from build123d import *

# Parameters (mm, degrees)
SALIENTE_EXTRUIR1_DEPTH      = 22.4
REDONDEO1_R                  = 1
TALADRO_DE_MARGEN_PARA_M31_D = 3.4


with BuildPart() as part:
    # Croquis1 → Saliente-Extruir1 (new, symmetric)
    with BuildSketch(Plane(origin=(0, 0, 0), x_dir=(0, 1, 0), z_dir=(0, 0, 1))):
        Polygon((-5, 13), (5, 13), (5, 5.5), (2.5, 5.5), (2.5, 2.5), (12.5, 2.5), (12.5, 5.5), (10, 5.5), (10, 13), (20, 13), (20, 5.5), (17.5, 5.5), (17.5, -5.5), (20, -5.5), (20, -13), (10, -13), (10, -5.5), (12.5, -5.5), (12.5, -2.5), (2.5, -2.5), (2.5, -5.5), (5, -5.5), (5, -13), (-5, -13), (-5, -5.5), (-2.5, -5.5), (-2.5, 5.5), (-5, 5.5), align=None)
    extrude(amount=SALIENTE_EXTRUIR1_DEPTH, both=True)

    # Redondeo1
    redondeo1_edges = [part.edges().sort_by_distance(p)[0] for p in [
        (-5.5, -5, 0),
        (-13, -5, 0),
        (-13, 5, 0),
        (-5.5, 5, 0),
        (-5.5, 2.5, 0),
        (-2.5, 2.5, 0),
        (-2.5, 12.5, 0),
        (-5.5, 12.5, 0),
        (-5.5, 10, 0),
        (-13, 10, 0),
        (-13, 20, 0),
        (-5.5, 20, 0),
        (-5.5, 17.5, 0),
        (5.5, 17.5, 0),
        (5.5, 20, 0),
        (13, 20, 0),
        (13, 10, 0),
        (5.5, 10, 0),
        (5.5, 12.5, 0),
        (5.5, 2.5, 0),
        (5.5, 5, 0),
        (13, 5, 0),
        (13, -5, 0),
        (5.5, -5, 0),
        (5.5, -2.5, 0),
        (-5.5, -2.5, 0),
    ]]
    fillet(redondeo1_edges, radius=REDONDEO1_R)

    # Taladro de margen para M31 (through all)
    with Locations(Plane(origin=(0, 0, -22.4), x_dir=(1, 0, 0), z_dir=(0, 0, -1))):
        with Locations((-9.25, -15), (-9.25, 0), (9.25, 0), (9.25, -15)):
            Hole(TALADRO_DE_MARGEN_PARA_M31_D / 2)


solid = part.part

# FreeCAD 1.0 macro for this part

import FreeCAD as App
import Part
import Sketcher
from FreeCAD import Vector


def edges_at(feature, points):
    """Names of the edges that pass closest to the given points."""
    edges = feature.Shape.Edges
    near = lambda p: min(range(len(edges)), key=lambda i: edges[i].distToShape(Part.Vertex(*p))[0])
    return sorted({f"Edge{near(p) + 1}" for p in points})

doc = App.newDocument("Part")
body = doc.addObject("PartDesign::Body", "Body")

# Sketch on XY plane
sketch1 = body.newObject("Sketcher::SketchObject", "Sketch")
sketch1.AttachmentSupport = (doc.getObject("XY_Plane"), [""])
sketch1.MapMode = "FlatFace"
sketch1.addGeometry([
    Part.LineSegment(Vector(-13, 5, 0), Vector(-13, -5, 0)),  # 0
    Part.LineSegment(Vector(-13, -5, 0), Vector(-5.5, -5, 0)),  # 1
    Part.LineSegment(Vector(-5.5, -5, 0), Vector(-5.5, -2.5, 0)),  # 2
    Part.LineSegment(Vector(-5.5, -2.5, 0), Vector(5.5, -2.5, 0)),  # 3
    Part.LineSegment(Vector(5.5, -2.5, 0), Vector(5.5, -5, 0)),  # 4
    Part.LineSegment(Vector(5.5, -5, 0), Vector(13, -5, 0)),  # 5
    Part.LineSegment(Vector(13, -5, 0), Vector(13, 5, 0)),  # 6
    Part.LineSegment(Vector(13, 5, 0), Vector(5.5, 5, 0)),  # 7
    Part.LineSegment(Vector(5.5, 5, 0), Vector(5.5, 2.5, 0)),  # 8
    Part.LineSegment(Vector(5.5, 2.5, 0), Vector(2.5, 2.5, 0)),  # 9
    Part.LineSegment(Vector(2.5, 2.5, 0), Vector(2.5, 12.5, 0)),  # 10
    Part.LineSegment(Vector(2.5, 12.5, 0), Vector(5.5, 12.5, 0)),  # 11
    Part.LineSegment(Vector(5.5, 12.5, 0), Vector(5.5, 10, 0)),  # 12
    Part.LineSegment(Vector(5.5, 10, 0), Vector(13, 10, 0)),  # 13
    Part.LineSegment(Vector(13, 10, 0), Vector(13, 20, 0)),  # 14
    Part.LineSegment(Vector(13, 20, 0), Vector(5.5, 20, 0)),  # 15
    Part.LineSegment(Vector(5.5, 20, 0), Vector(5.5, 17.5, 0)),  # 16
    Part.LineSegment(Vector(5.5, 17.5, 0), Vector(-5.5, 17.5, 0)),  # 17
    Part.LineSegment(Vector(-5.5, 17.5, 0), Vector(-5.5, 20, 0)),  # 18
    Part.LineSegment(Vector(-5.5, 20, 0), Vector(-13, 20, 0)),  # 19
    Part.LineSegment(Vector(-13, 20, 0), Vector(-13, 10, 0)),  # 20
    Part.LineSegment(Vector(-13, 10, 0), Vector(-5.5, 10, 0)),  # 21
    Part.LineSegment(Vector(-5.5, 10, 0), Vector(-5.5, 12.5, 0)),  # 22
    Part.LineSegment(Vector(-5.5, 12.5, 0), Vector(-2.5, 12.5, 0)),  # 23
    Part.LineSegment(Vector(-2.5, 12.5, 0), Vector(-2.5, 2.5, 0)),  # 24
    Part.LineSegment(Vector(-2.5, 2.5, 0), Vector(-5.5, 2.5, 0)),  # 25
    Part.LineSegment(Vector(-5.5, 2.5, 0), Vector(-5.5, 5, 0)),  # 26
    Part.LineSegment(Vector(-5.5, 5, 0), Vector(-13, 5, 0)),  # 27
], False)
sketch1.addConstraint([
    Sketcher.Constraint("Coincident", 0, 2, 1, 1),
    Sketcher.Constraint("Coincident", 1, 2, 2, 1),
    Sketcher.Constraint("Coincident", 2, 2, 3, 1),
    Sketcher.Constraint("Coincident", 3, 2, 4, 1),
    Sketcher.Constraint("Coincident", 4, 2, 5, 1),
    Sketcher.Constraint("Coincident", 5, 2, 6, 1),
    Sketcher.Constraint("Coincident", 6, 2, 7, 1),
    Sketcher.Constraint("Coincident", 7, 2, 8, 1),
    Sketcher.Constraint("Coincident", 8, 2, 9, 1),
    Sketcher.Constraint("Coincident", 9, 2, 10, 1),
    Sketcher.Constraint("Coincident", 10, 2, 11, 1),
    Sketcher.Constraint("Coincident", 11, 2, 12, 1),
    Sketcher.Constraint("Coincident", 12, 2, 13, 1),
    Sketcher.Constraint("Coincident", 13, 2, 14, 1),
    Sketcher.Constraint("Coincident", 14, 2, 15, 1),
    Sketcher.Constraint("Coincident", 15, 2, 16, 1),
    Sketcher.Constraint("Coincident", 16, 2, 17, 1),
    Sketcher.Constraint("Coincident", 17, 2, 18, 1),
    Sketcher.Constraint("Coincident", 18, 2, 19, 1),
    Sketcher.Constraint("Coincident", 19, 2, 20, 1),
    Sketcher.Constraint("Coincident", 20, 2, 21, 1),
    Sketcher.Constraint("Coincident", 21, 2, 22, 1),
    Sketcher.Constraint("Coincident", 22, 2, 23, 1),
    Sketcher.Constraint("Coincident", 23, 2, 24, 1),
    Sketcher.Constraint("Coincident", 24, 2, 25, 1),
    Sketcher.Constraint("Coincident", 25, 2, 26, 1),
    Sketcher.Constraint("Coincident", 26, 2, 27, 1),
    Sketcher.Constraint("Coincident", 27, 2, 0, 1),
    Sketcher.Constraint("Vertical", 0),
    Sketcher.Constraint("Horizontal", 1),
    Sketcher.Constraint("Vertical", 2),
    Sketcher.Constraint("Horizontal", 3),
    Sketcher.Constraint("Vertical", 4),
    Sketcher.Constraint("Horizontal", 5),
    Sketcher.Constraint("Vertical", 6),
    Sketcher.Constraint("Horizontal", 7),
    Sketcher.Constraint("Vertical", 8),
    Sketcher.Constraint("Horizontal", 9),
    Sketcher.Constraint("Vertical", 10),
    Sketcher.Constraint("Horizontal", 11),
    Sketcher.Constraint("Vertical", 12),
    Sketcher.Constraint("Horizontal", 13),
    Sketcher.Constraint("Vertical", 14),
    Sketcher.Constraint("Horizontal", 15),
    Sketcher.Constraint("Vertical", 16),
    Sketcher.Constraint("Horizontal", 17),
    Sketcher.Constraint("Vertical", 18),
    Sketcher.Constraint("Horizontal", 19),
    Sketcher.Constraint("Vertical", 20),
    Sketcher.Constraint("Horizontal", 21),
    Sketcher.Constraint("Vertical", 22),
    Sketcher.Constraint("Horizontal", 23),
    Sketcher.Constraint("Vertical", 24),
    Sketcher.Constraint("Horizontal", 25),
    Sketcher.Constraint("Vertical", 26),
    Sketcher.Constraint("Horizontal", 27),
    Sketcher.Constraint("Symmetric", 0, 2, 6, 2, -1, 1),
    Sketcher.Constraint("Symmetric", 2, 2, 8, 2, -1, 1),
    Sketcher.Constraint("Symmetric", 3, 2, 25, 2, -1, 1),
    Sketcher.Constraint("Symmetric", 1, 2, 4, 2, -2),
    Sketcher.Constraint("Symmetric", 15, 2, 18, 2, -2),
    Sketcher.Constraint("Symmetric", 13, 2, 20, 2, -2),
    Sketcher.Constraint("Symmetric", 11, 2, 22, 2, -2),
    Sketcher.Constraint("Horizontal", 7, 2, 26, 2),
    Sketcher.Constraint("Vertical", 8, 2, 11, 2),
    Sketcher.Constraint("Vertical", 6, 2, 13, 2),
    Sketcher.Constraint("Vertical", 12, 2, 15, 2),
    Sketcher.Constraint("Equal", 11, 23),
    Sketcher.Constraint("Equal", 6, 10),
    Sketcher.Constraint("Equal", 8, 12),
    Sketcher.Constraint("Equal", 10, 14),
    Sketcher.Constraint("Equal", 12, 16),
    Sketcher.Constraint("DistanceX", 3, 1, 3, 2, 11.0),
    Sketcher.Constraint("DistanceX", 9, 2, 9, 1, 3.0),
    Sketcher.Constraint("DistanceY", 0, 2, 0, 1, 10.0),
    Sketcher.Constraint("DistanceX", 1, 1, 1, 2, 7.5),
    Sketcher.Constraint("DistanceY", 2, 1, 2, 2, 2.5),
])
pad1 = body.newObject("PartDesign::Pad", "Pad")
pad1.Profile = sketch1
pad1.Length = 44.8
pad1.Midplane = True
doc.recompute()

fillet = body.newObject("PartDesign::Fillet", "Fillet")
fillet.Base = (pad1, edges_at(pad1, [
    (-5.5, -5, 0),
    (-13, -5, 0),
    (-13, 5, 0),
    (-5.5, 5, 0),
    (-5.5, 2.5, 0),
    (-2.5, 2.5, 0),
    (-2.5, 12.5, 0),
    (-5.5, 12.5, 0),
    (-5.5, 10, 0),
    (-13, 10, 0),
    (-13, 20, 0),
    (-5.5, 20, 0),
    (-5.5, 17.5, 0),
    (5.5, 17.5, 0),
    (5.5, 20, 0),
    (13, 20, 0),
    (13, 10, 0),
    (5.5, 10, 0),
    (5.5, 12.5, 0),
    (5.5, 2.5, 0),
    (5.5, 5, 0),
    (13, 5, 0),
    (13, -5, 0),
    (5.5, -5, 0),
    (5.5, -2.5, 0),
    (-5.5, -2.5, 0),
]))
fillet.Radius = 1

# Sketch on XY plane
sketch2 = body.newObject("Sketcher::SketchObject", "Sketch001")
sketch2.AttachmentSupport = (doc.getObject("XY_Plane"), [""])
sketch2.MapMode = "FlatFace"
sketch2.AttachmentOffset = App.Placement(Vector(0, 0, -22.4), App.Rotation())
sketch2.addGeometry([
    Part.Circle(Vector(-9.25, 15, 0), Vector(0, 0, 1), 1.7),
    Part.Circle(Vector(-9.25, 0, 0), Vector(0, 0, 1), 1.7),
    Part.Circle(Vector(9.25, 0, 0), Vector(0, 0, 1), 1.7),
    Part.Circle(Vector(9.25, 15, 0), Vector(0, 0, 1), 1.7),
], False)
sketch2.addConstraint([
    Sketcher.Constraint("Equal", 0, 1),
    Sketcher.Constraint("Equal", 1, 2),
    Sketcher.Constraint("Equal", 2, 3),
    Sketcher.Constraint("Symmetric", 1, 3, 2, 3, -1, 1),
    Sketcher.Constraint("Symmetric", 0, 3, 3, 3, -2),
    Sketcher.Constraint("PointOnObject", 1, 3, -1),
    Sketcher.Constraint("Vertical", 0, 3, 1, 3),
    Sketcher.Constraint("Diameter", 0, 3.4),
    Sketcher.Constraint("DistanceY", -1, 1, 0, 3, 15.0),
    Sketcher.Constraint("DistanceX", 1, 3, 2, 3, 18.5),
])
doc.recompute()
hole = body.newObject("PartDesign::Hole", "Hole")
hole.Profile = sketch2
hole.ThreadType = "None"
hole.Diameter = 3.4
hole.DepthType = "ThroughAll"
hole.Reversed = True

doc.recompute()
